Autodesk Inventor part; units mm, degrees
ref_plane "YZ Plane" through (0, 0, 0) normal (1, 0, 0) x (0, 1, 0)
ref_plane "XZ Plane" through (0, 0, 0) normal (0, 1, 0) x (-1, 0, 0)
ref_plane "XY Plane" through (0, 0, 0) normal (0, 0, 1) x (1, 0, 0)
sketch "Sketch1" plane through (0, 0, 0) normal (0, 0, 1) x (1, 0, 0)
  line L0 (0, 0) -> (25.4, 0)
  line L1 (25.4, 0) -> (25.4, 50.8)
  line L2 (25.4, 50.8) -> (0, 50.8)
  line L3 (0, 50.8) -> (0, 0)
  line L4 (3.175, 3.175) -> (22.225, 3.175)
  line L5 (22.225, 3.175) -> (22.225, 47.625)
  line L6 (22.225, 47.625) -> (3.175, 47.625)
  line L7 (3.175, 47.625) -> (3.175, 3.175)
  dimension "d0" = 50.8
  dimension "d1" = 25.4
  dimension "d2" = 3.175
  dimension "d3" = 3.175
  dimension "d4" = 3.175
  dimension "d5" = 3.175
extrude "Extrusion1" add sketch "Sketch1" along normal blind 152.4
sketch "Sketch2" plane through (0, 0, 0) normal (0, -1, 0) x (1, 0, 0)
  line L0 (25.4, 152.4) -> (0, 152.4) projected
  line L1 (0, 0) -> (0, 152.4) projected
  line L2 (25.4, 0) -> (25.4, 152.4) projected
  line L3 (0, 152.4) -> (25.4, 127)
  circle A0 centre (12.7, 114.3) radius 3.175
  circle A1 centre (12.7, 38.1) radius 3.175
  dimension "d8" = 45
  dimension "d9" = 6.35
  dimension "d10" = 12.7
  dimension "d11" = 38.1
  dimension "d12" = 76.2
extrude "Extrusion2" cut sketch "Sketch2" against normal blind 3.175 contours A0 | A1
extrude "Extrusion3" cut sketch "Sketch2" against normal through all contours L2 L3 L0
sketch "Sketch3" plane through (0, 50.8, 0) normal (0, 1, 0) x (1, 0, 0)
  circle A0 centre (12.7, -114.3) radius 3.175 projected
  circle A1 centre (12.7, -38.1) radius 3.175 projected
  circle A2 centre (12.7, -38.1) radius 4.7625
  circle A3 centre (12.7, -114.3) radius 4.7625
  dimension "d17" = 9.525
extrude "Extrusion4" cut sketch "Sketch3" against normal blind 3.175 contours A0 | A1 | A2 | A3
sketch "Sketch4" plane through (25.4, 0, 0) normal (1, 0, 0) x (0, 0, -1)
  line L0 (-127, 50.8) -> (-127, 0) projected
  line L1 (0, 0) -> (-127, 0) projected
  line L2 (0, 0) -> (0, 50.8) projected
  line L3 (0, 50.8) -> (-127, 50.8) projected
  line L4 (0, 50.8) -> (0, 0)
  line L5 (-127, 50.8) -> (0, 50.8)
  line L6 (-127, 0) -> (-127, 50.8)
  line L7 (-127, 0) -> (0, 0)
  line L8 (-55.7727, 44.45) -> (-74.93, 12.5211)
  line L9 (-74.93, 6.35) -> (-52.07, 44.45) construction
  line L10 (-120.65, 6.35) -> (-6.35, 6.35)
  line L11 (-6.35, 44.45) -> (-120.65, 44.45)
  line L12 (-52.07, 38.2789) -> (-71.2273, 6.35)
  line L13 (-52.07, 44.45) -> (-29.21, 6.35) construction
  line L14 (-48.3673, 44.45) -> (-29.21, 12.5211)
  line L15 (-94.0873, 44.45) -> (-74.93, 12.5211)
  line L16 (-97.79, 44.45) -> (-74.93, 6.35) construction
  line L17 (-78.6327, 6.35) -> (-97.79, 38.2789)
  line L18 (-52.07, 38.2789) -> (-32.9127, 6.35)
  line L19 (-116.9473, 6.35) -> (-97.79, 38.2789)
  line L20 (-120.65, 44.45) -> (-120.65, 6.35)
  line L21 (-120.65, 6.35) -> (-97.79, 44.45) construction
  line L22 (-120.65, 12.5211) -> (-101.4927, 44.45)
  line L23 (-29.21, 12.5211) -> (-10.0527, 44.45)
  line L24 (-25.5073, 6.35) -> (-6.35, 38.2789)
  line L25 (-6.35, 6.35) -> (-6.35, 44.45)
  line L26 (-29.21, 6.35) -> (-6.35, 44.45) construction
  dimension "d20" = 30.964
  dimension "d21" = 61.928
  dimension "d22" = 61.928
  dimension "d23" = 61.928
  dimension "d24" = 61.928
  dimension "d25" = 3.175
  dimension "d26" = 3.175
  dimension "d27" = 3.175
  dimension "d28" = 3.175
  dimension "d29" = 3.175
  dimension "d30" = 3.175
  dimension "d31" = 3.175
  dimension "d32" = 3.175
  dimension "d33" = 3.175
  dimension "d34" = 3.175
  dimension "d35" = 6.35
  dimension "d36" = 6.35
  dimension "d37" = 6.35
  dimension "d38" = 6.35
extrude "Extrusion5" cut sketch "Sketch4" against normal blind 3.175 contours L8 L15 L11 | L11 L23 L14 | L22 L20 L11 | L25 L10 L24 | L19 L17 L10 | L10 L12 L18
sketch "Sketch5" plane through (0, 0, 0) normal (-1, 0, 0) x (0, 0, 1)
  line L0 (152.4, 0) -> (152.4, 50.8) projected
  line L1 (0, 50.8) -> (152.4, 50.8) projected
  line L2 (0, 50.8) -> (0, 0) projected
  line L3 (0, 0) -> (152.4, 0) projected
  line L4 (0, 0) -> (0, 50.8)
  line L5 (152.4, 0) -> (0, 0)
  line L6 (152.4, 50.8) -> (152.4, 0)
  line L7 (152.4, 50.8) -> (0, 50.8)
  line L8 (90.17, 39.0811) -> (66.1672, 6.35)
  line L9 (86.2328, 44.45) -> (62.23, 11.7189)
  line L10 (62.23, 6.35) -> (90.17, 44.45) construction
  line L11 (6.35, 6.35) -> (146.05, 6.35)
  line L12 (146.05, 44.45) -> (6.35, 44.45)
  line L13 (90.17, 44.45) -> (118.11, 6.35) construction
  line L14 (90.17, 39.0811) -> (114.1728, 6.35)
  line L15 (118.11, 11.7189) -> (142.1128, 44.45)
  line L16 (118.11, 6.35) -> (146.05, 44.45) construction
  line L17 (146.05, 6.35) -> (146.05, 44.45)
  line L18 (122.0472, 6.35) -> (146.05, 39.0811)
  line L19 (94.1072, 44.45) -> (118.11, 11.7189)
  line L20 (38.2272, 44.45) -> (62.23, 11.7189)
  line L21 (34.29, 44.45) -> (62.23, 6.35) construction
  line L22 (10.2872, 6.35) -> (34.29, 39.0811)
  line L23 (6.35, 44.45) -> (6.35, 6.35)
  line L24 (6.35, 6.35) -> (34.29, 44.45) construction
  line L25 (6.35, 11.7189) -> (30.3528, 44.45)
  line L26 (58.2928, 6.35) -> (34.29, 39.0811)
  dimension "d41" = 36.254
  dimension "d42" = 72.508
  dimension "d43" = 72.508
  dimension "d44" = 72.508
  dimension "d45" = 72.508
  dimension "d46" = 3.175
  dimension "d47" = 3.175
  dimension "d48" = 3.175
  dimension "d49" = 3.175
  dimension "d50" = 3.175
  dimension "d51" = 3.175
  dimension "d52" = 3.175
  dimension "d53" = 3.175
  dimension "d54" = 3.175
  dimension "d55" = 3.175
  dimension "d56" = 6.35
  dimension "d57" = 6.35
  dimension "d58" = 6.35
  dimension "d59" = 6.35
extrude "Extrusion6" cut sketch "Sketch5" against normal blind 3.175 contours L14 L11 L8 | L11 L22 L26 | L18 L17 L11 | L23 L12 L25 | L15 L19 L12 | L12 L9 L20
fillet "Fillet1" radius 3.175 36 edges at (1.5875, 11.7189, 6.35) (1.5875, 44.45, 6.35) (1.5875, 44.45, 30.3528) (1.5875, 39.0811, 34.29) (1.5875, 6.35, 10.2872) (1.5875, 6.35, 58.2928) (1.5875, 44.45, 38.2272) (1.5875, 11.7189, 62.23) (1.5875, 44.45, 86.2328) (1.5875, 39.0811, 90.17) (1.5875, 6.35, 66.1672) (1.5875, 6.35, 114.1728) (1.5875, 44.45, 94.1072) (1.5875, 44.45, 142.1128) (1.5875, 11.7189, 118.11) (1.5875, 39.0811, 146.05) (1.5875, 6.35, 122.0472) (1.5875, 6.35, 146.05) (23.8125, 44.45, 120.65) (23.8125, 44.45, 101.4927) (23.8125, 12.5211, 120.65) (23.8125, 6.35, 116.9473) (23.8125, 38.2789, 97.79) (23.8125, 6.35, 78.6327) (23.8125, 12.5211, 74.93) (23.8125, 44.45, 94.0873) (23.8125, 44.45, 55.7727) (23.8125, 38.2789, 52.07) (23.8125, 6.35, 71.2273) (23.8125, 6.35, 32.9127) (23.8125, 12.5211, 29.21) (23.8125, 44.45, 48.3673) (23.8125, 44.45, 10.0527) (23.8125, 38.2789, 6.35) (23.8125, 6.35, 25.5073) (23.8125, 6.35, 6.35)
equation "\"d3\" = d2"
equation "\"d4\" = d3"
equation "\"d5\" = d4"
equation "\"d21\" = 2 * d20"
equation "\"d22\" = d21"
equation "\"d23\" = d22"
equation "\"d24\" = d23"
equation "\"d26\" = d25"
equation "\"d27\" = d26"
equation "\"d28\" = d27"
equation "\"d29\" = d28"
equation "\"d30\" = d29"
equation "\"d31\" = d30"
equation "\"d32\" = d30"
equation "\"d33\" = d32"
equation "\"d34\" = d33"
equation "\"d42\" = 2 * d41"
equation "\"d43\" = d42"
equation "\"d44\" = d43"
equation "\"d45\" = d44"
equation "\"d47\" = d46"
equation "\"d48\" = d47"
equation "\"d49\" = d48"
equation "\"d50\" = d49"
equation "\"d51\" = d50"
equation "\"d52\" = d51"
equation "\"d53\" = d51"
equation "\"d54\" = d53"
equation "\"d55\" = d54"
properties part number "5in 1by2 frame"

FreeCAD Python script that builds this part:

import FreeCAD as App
import Part
import Sketcher
Q = App.Units.Quantity


def edges_at(feature, points):
    """Names of the edges that pass closest to the given points."""
    edges = feature.Shape.Edges
    near = lambda p: min(range(len(edges)), key=lambda i: edges[i].distToShape(Part.Vertex(*p))[0])
    return sorted({f"Edge{near(p) + 1}" for p in points})

doc = App.newDocument("Part")
body = doc.addObject("PartDesign::Body", "Body")

# Sketch on XY plane
sketch1 = body.newObject("Sketcher::SketchObject", "Sketch")
sketch1.AttachmentSupport = (doc.getObject("XY_Plane"), [""])
sketch1.MapMode = "FlatFace"
sketch1.addGeometry([
    Part.LineSegment(App.Vector(0, 51, 0), App.Vector(0, 0, 0)),  # 0
    Part.LineSegment(App.Vector(0, 0, 0), App.Vector(25, 0, 0)),  # 1
    Part.LineSegment(App.Vector(25, 0, 0), App.Vector(25, 51, 0)),  # 2
    Part.LineSegment(App.Vector(25, 51, 0), App.Vector(0, 51, 0)),  # 3
    Part.LineSegment(App.Vector(22, 3, 0), App.Vector(3, 3, 0)),  # 4
    Part.LineSegment(App.Vector(3, 3, 0), App.Vector(3, 48, 0)),  # 5
    Part.LineSegment(App.Vector(3, 48, 0), App.Vector(22, 48, 0)),  # 6
    Part.LineSegment(App.Vector(22, 48, 0), App.Vector(22, 3, 0)),  # 7
], False)
sketch1.addConstraint([
    Sketcher.Constraint("Coincident", 0, 2, 1, 1),
    Sketcher.Constraint("Coincident", 1, 2, 2, 1),
    Sketcher.Constraint("Coincident", 2, 2, 3, 1),
    Sketcher.Constraint("Coincident", 3, 2, 0, 1),
    Sketcher.Constraint("Coincident", 4, 2, 5, 1),
    Sketcher.Constraint("Coincident", 5, 2, 6, 1),
    Sketcher.Constraint("Coincident", 6, 2, 7, 1),
    Sketcher.Constraint("Coincident", 7, 2, 4, 1),
    Sketcher.Constraint("Vertical", 0),
    Sketcher.Constraint("Horizontal", 1),
    Sketcher.Constraint("Vertical", 2),
    Sketcher.Constraint("Horizontal", 3),
    Sketcher.Constraint("Horizontal", 4),
    Sketcher.Constraint("Vertical", 5),
    Sketcher.Constraint("Horizontal", 6),
    Sketcher.Constraint("Vertical", 7),
    Sketcher.Constraint("Coincident", 0, 2, -1, 1),
    Sketcher.Constraint("DistanceX", 1, 1, 1, 2, Q("1 in")),
    Sketcher.Constraint("DistanceY", 0, 2, 0, 1, Q("2 in")),
    Sketcher.Constraint("DistanceX", -1, 1, 4, 2, Q("0.125 in")),
    Sketcher.Constraint("DistanceY", -1, 1, 4, 2, Q("0.125 in")),
    Sketcher.Constraint("DistanceY", 5, 2, 3, 2, Q("0.125 in")),
    Sketcher.Constraint("DistanceX", 6, 2, 2, 2, Q("0.125 in")),
])
pad1 = body.newObject("PartDesign::Pad", "Pad")
pad1.Profile = sketch1
pad1.Length = Q("6 in")

# Sketch on XZ plane
sketch2 = body.newObject("Sketcher::SketchObject", "Sketch001")
sketch2.AttachmentSupport = (doc.getObject("XZ_Plane"), [""])
sketch2.MapMode = "FlatFace"
sketch2.addGeometry([
    Part.Circle(App.Vector(12.7, 114.3, 0), App.Vector(0, 0, 1), 3.2),
    Part.Circle(App.Vector(12.7, 38.1, 0), App.Vector(0, 0, 1), 3.2),
], False)
sketch2.addConstraint([
    Sketcher.Constraint("Equal", 0, 1),
    Sketcher.Constraint("Vertical", 0, 3, 1, 3),
    Sketcher.Constraint("Diameter", 0, Q("0.25 in")),
    Sketcher.Constraint("DistanceY", 1, 3, 0, 3, Q("3 in")),
    Sketcher.Constraint("DistanceX", -1, 1, 0, 3, Q("0.5 in")),
    Sketcher.Constraint("DistanceY", -1, 1, 1, 3, Q("1.5 in")),
])
pocket1 = body.newObject("PartDesign::Pocket", "Pocket")
pocket1.Profile = sketch2
pocket1.Length = Q("0.125 in")

# Sketch on XZ plane
sketch3 = body.newObject("Sketcher::SketchObject", "Sketch002")
sketch3.AttachmentSupport = (doc.getObject("XZ_Plane"), [""])
sketch3.MapMode = "FlatFace"
sketch3.addGeometry([
    Part.LineSegment(App.Vector(25, 127, 0), App.Vector(25, 152, 0)),
    Part.LineSegment(App.Vector(25, 152, 0), App.Vector(0, 152, 0)),
    Part.LineSegment(App.Vector(0, 152, 0), App.Vector(25, 127, 0)),
], False)
sketch3.addConstraint([
    Sketcher.Constraint("Coincident", 0, 2, 1, 1),
    Sketcher.Constraint("Coincident", 1, 2, 2, 1),
    Sketcher.Constraint("Coincident", 2, 2, 0, 1),
    Sketcher.Constraint("Vertical", 0),
    Sketcher.Constraint("Horizontal", 1),
    Sketcher.Constraint("PointOnObject", 1, 2, -2),
    Sketcher.Constraint("Equal", 1, 0),
    Sketcher.Constraint("DistanceX", 1, 2, 1, 1, Q("1 in")),
    Sketcher.Constraint("DistanceY", -1, 1, 0, 2, Q("6 in")),
])
pocket2 = body.newObject("PartDesign::Pocket", "Pocket001")
pocket2.Profile = sketch3
pocket2.Type = "ThroughAll"

# Sketch on XZ plane
sketch4 = body.newObject("Sketcher::SketchObject", "Sketch003")
sketch4.AttachmentSupport = (doc.getObject("XZ_Plane"), [""])
sketch4.MapMode = "FlatFace"
sketch4.AttachmentOffset = App.Placement(App.Vector(0, 0, -2 * 25.4), App.Rotation())
sketch4.addGeometry([
    Part.Circle(App.Vector(12.7, 114.3, 0), App.Vector(0, 0, 1), 4.8),
    Part.Circle(App.Vector(12.7, 38.1, 0), App.Vector(0, 0, 1), 4.8),
], False)
sketch4.addConstraint([
    Sketcher.Constraint("Equal", 0, 1),
    Sketcher.Constraint("Vertical", 0, 3, 1, 3),
    Sketcher.Constraint("Diameter", 0, Q("0.375 in")),
    Sketcher.Constraint("DistanceY", 1, 3, 0, 3, Q("3 in")),
    Sketcher.Constraint("DistanceX", -1, 1, 0, 3, Q("0.5 in")),
    Sketcher.Constraint("DistanceY", -1, 1, 0, 3, Q("4.5 in")),
])
pocket3 = body.newObject("PartDesign::Pocket", "Pocket002")
pocket3.Profile = sketch4
pocket3.Length = Q("0.125 in")
pocket3.Reversed = True

# Sketch on YZ plane
sketch5 = body.newObject("Sketcher::SketchObject", "Sketch004")
sketch5.AttachmentSupport = (doc.getObject("YZ_Plane"), [""])
sketch5.MapMode = "FlatFace"
sketch5.AttachmentOffset = App.Placement(App.Vector(0, 0, 1 * 25.4), App.Rotation())
sketch5.addGeometry([
    Part.LineSegment(App.Vector(13, 75, 0), App.Vector(44, 56, 0)),  # 0
    Part.LineSegment(App.Vector(44, 56, 0), App.Vector(44, 94, 0)),  # 1
    Part.LineSegment(App.Vector(44, 94, 0), App.Vector(13, 75, 0)),  # 2
    Part.LineSegment(App.Vector(44, 10, 0), App.Vector(44, 48, 0)),  # 3
    Part.LineSegment(App.Vector(44, 48, 0), App.Vector(13, 29, 0)),  # 4
    Part.LineSegment(App.Vector(13, 29, 0), App.Vector(44, 10, 0)),  # 5
    Part.LineSegment(App.Vector(13, 121, 0), App.Vector(44, 101, 0)),  # 6
    Part.LineSegment(App.Vector(44, 101, 0), App.Vector(44, 121, 0)),  # 7
    Part.LineSegment(App.Vector(44, 121, 0), App.Vector(13, 121, 0)),  # 8
    Part.LineSegment(App.Vector(6, 6, 0), App.Vector(38, 6, 0)),  # 9
    Part.LineSegment(App.Vector(38, 6, 0), App.Vector(6, 26, 0)),  # 10
    Part.LineSegment(App.Vector(6, 26, 0), App.Vector(6, 6, 0)),  # 11
    Part.LineSegment(App.Vector(38, 98, 0), App.Vector(6, 117, 0)),  # 12
    Part.LineSegment(App.Vector(6, 117, 0), App.Vector(6, 79, 0)),  # 13
    Part.LineSegment(App.Vector(6, 79, 0), App.Vector(38, 98, 0)),  # 14
    Part.LineSegment(App.Vector(6, 71, 0), App.Vector(6, 33, 0)),  # 15
    Part.LineSegment(App.Vector(6, 33, 0), App.Vector(38, 52, 0)),  # 16
    Part.LineSegment(App.Vector(38, 52, 0), App.Vector(6, 71, 0)),  # 17
], False)
sketch5.addConstraint([
    Sketcher.Constraint("Coincident", 0, 2, 1, 1),
    Sketcher.Constraint("Coincident", 1, 2, 2, 1),
    Sketcher.Constraint("Coincident", 2, 2, 0, 1),
    Sketcher.Constraint("Coincident", 3, 2, 4, 1),
    Sketcher.Constraint("Coincident", 4, 2, 5, 1),
    Sketcher.Constraint("Coincident", 5, 2, 3, 1),
    Sketcher.Constraint("Coincident", 6, 2, 7, 1),
    Sketcher.Constraint("Coincident", 7, 2, 8, 1),
    Sketcher.Constraint("Coincident", 8, 2, 6, 1),
    Sketcher.Constraint("Coincident", 9, 2, 10, 1),
    Sketcher.Constraint("Coincident", 10, 2, 11, 1),
    Sketcher.Constraint("Coincident", 11, 2, 9, 1),
    Sketcher.Constraint("Coincident", 12, 2, 13, 1),
    Sketcher.Constraint("Coincident", 13, 2, 14, 1),
    Sketcher.Constraint("Coincident", 14, 2, 12, 1),
    Sketcher.Constraint("Coincident", 15, 2, 16, 1),
    Sketcher.Constraint("Coincident", 16, 2, 17, 1),
    Sketcher.Constraint("Coincident", 17, 2, 15, 1),
    Sketcher.Constraint("Vertical", 1),
    Sketcher.Constraint("Vertical", 3),
    Sketcher.Constraint("Vertical", 7),
    Sketcher.Constraint("Horizontal", 8),
    Sketcher.Constraint("Horizontal", 9),
    Sketcher.Constraint("Vertical", 11),
    Sketcher.Constraint("Vertical", 13),
    Sketcher.Constraint("Vertical", 15),
    Sketcher.Constraint("Parallel", 2, 4),
    Sketcher.Constraint("Parallel", 0, 5),
    Sketcher.Constraint("Parallel", 5, 6),
    Sketcher.Constraint("Parallel", 6, 10),
    Sketcher.Constraint("Parallel", 10, 12),
    Sketcher.Constraint("Parallel", 4, 14),
    Sketcher.Constraint("Parallel", 14, 16),
    Sketcher.Constraint("Parallel", 12, 17),
    Sketcher.Constraint("Vertical", 1, 2, 3, 2),
    Sketcher.Constraint("Vertical", 2, 2, 4, 2),
    Sketcher.Constraint("Vertical", 5, 2, 6, 2),
    Sketcher.Constraint("Vertical", 4, 2, 8, 2),
    Sketcher.Constraint("Vertical", 11, 2, 12, 2),
    Sketcher.Constraint("Vertical", 9, 2, 14, 2),
    Sketcher.Constraint("Vertical", 13, 2, 15, 2),
    Sketcher.Constraint("Vertical", 14, 2, 16, 2),
    Sketcher.Constraint("Equal", 8, 9),
    Sketcher.Constraint("Equal", 0, 2),
    Sketcher.Constraint("DistanceY", -1, 1, 9, 2, Q("0.25 in")),
    Sketcher.Constraint("DistanceX", -1, 1, 10, 2, Q("0.25 in")),
    Sketcher.Constraint("DistanceY", 3, 2, 1, 2, Q("1.8 in")),
    Sketcher.Constraint("DistanceY", 0, 2, 6, 2, Q("1.8 in")),
    Sketcher.Constraint("DistanceY", 9, 2, 4, 2, Q("0.9 in")),
    Sketcher.Constraint("DistanceX", 10, 2, 5, 2, Q("1.5 in")),
    Sketcher.Constraint("DistanceY", 1, 2, 12, 2, Q("0.9 in")),
    Sketcher.Constraint("DistanceY", 4, 2, 16, 2, Q("0.9 in")),
    Sketcher.Constraint("DistanceX", 8, 2, 8, 1, Q("31.929 mm")),
    Sketcher.Constraint("DistanceY", 1, 1, 1, 2, Q("38.3146 mm")),
])
pocket4 = body.newObject("PartDesign::Pocket", "Pocket003")
pocket4.Profile = sketch5
pocket4.Length = Q("0.125 in")

# Sketch on YZ plane
sketch6 = body.newObject("Sketcher::SketchObject", "Sketch005")
sketch6.AttachmentSupport = (doc.getObject("YZ_Plane"), [""])
sketch6.MapMode = "FlatFace"
sketch6.addGeometry([
    Part.LineSegment(App.Vector(6, 114, 0), App.Vector(39, 90, 0)),  # 0
    Part.LineSegment(App.Vector(39, 90, 0), App.Vector(6, 66, 0)),  # 1
    Part.LineSegment(App.Vector(6, 66, 0), App.Vector(6, 114, 0)),  # 2
    Part.LineSegment(App.Vector(6, 10, 0), App.Vector(6, 58, 0)),  # 3
    Part.LineSegment(App.Vector(6, 58, 0), App.Vector(39, 34, 0)),  # 4
    Part.LineSegment(App.Vector(39, 34, 0), App.Vector(6, 10, 0)),  # 5
    Part.LineSegment(App.Vector(39, 146, 0), App.Vector(6, 122, 0)),  # 6
    Part.LineSegment(App.Vector(6, 122, 0), App.Vector(6, 146, 0)),  # 7
    Part.LineSegment(App.Vector(6, 146, 0), App.Vector(39, 146, 0)),  # 8
    Part.LineSegment(App.Vector(44, 6, 0), App.Vector(12, 6, 0)),  # 9
    Part.LineSegment(App.Vector(12, 6, 0), App.Vector(44, 30, 0)),  # 10
    Part.LineSegment(App.Vector(44, 30, 0), App.Vector(44, 6, 0)),  # 11
    Part.LineSegment(App.Vector(12, 118, 0), App.Vector(44, 142, 0)),  # 12
    Part.LineSegment(App.Vector(44, 142, 0), App.Vector(44, 94, 0)),  # 13
    Part.LineSegment(App.Vector(44, 94, 0), App.Vector(12, 118, 0)),  # 14
    Part.LineSegment(App.Vector(44, 86, 0), App.Vector(44, 38, 0)),  # 15
    Part.LineSegment(App.Vector(44, 38, 0), App.Vector(12, 62, 0)),  # 16
    Part.LineSegment(App.Vector(12, 62, 0), App.Vector(44, 86, 0)),  # 17
], False)
sketch6.addConstraint([
    Sketcher.Constraint("Coincident", 0, 2, 1, 1),
    Sketcher.Constraint("Coincident", 1, 2, 2, 1),
    Sketcher.Constraint("Coincident", 2, 2, 0, 1),
    Sketcher.Constraint("Coincident", 3, 2, 4, 1),
    Sketcher.Constraint("Coincident", 4, 2, 5, 1),
    Sketcher.Constraint("Coincident", 5, 2, 3, 1),
    Sketcher.Constraint("Coincident", 6, 2, 7, 1),
    Sketcher.Constraint("Coincident", 7, 2, 8, 1),
    Sketcher.Constraint("Coincident", 8, 2, 6, 1),
    Sketcher.Constraint("Coincident", 9, 2, 10, 1),
    Sketcher.Constraint("Coincident", 10, 2, 11, 1),
    Sketcher.Constraint("Coincident", 11, 2, 9, 1),
    Sketcher.Constraint("Coincident", 12, 2, 13, 1),
    Sketcher.Constraint("Coincident", 13, 2, 14, 1),
    Sketcher.Constraint("Coincident", 14, 2, 12, 1),
    Sketcher.Constraint("Coincident", 15, 2, 16, 1),
    Sketcher.Constraint("Coincident", 16, 2, 17, 1),
    Sketcher.Constraint("Coincident", 17, 2, 15, 1),
    Sketcher.Constraint("Vertical", 2),
    Sketcher.Constraint("Vertical", 3),
    Sketcher.Constraint("Vertical", 7),
    Sketcher.Constraint("Horizontal", 8),
    Sketcher.Constraint("Horizontal", 9),
    Sketcher.Constraint("Vertical", 11),
    Sketcher.Constraint("Vertical", 13),
    Sketcher.Constraint("Vertical", 15),
    Sketcher.Constraint("Parallel", 0, 4),
    Sketcher.Constraint("Parallel", 1, 5),
    Sketcher.Constraint("Parallel", 5, 6),
    Sketcher.Constraint("Parallel", 6, 10),
    Sketcher.Constraint("Parallel", 10, 12),
    Sketcher.Constraint("Parallel", 4, 14),
    Sketcher.Constraint("Parallel", 14, 16),
    Sketcher.Constraint("Parallel", 12, 17),
    Sketcher.Constraint("Vertical", 2, 2, 3, 2),
    Sketcher.Constraint("Vertical", 0, 2, 4, 2),
    Sketcher.Constraint("Vertical", 5, 2, 6, 2),
    Sketcher.Constraint("Vertical", 4, 2, 8, 2),
    Sketcher.Constraint("Vertical", 11, 2, 12, 2),
    Sketcher.Constraint("Vertical", 9, 2, 14, 2),
    Sketcher.Constraint("Vertical", 13, 2, 15, 2),
    Sketcher.Constraint("Vertical", 14, 2, 16, 2),
    Sketcher.Constraint("Equal", 8, 9),
    Sketcher.Constraint("Equal", 0, 1),
    Sketcher.Constraint("DistanceX", -1, 1, 1, 2, Q("0.25 in")),
    Sketcher.Constraint("DistanceY", -1, 1, 9, 2, Q("0.25 in")),
    Sketcher.Constraint("DistanceY", 3, 2, 2, 2, Q("2.2 in")),
    Sketcher.Constraint("DistanceY", 1, 2, 6, 2, Q("2.2 in")),
    Sketcher.Constraint("DistanceY", 9, 2, 4, 2, Q("1.1 in")),
    Sketcher.Constraint("DistanceX", 5, 2, 10, 2, Q("1.5 in")),
    Sketcher.Constraint("DistanceY", 2, 2, 12, 2, Q("1.1 in")),
    Sketcher.Constraint("DistanceY", 4, 2, 16, 2, Q("1.1 in")),
    Sketcher.Constraint("DistanceY", 7, 1, 7, 2, Q("0.945 in")),
    Sketcher.Constraint("Distance", 0, Q("1.598 in")),
])
pocket5 = body.newObject("PartDesign::Pocket", "Pocket004")
pocket5.Profile = sketch6
pocket5.Length = Q("0.125 in")
pocket5.Reversed = True
doc.recompute()

fillet = body.newObject("PartDesign::Fillet", "Fillet")
fillet.Base = (pocket5, edges_at(pocket5, [
    (1.587, 11.719, 6.35),
    (1.587, 44.45, 6.35),
    (1.587, 44.45, 30.353),
    (1.587, 39.081, 34.29),
    (1.587, 6.35, 10.287),
    (1.587, 6.35, 58.293),
    (1.587, 44.45, 38.227),
    (1.587, 11.719, 62.23),
    (1.587, 44.45, 86.233),
    (1.587, 39.081, 90.17),
    (1.587, 6.35, 66.167),
    (1.587, 6.35, 114.173),
    (1.587, 44.45, 94.107),
    (1.587, 44.45, 142.113),
    (1.587, 11.719, 118.11),
    (1.587, 39.081, 146.05),
    (1.587, 6.35, 122.047),
    (1.587, 6.35, 146.05),
    (23.812, 44.45, 120.65),
    (23.812, 44.45, 101.493),
    (23.812, 12.521, 120.65),
    (23.812, 6.35, 116.947),
    (23.812, 38.279, 97.79),
    (23.812, 6.35, 78.633),
    (23.812, 12.521, 74.93),
    (23.812, 44.45, 94.087),
    (23.812, 44.45, 55.773),
    (23.812, 38.279, 52.07),
    (23.812, 6.35, 71.227),
    (23.812, 6.35, 32.913),
    (23.812, 12.521, 29.21),
    (23.812, 44.45, 48.367),
    (23.812, 44.45, 10.053),
    (23.812, 38.279, 6.35),
    (23.812, 6.35, 25.507),
    (23.812, 6.35, 6.35),
]))
fillet.Radius = Q("0.125 in")

doc.recompute()
